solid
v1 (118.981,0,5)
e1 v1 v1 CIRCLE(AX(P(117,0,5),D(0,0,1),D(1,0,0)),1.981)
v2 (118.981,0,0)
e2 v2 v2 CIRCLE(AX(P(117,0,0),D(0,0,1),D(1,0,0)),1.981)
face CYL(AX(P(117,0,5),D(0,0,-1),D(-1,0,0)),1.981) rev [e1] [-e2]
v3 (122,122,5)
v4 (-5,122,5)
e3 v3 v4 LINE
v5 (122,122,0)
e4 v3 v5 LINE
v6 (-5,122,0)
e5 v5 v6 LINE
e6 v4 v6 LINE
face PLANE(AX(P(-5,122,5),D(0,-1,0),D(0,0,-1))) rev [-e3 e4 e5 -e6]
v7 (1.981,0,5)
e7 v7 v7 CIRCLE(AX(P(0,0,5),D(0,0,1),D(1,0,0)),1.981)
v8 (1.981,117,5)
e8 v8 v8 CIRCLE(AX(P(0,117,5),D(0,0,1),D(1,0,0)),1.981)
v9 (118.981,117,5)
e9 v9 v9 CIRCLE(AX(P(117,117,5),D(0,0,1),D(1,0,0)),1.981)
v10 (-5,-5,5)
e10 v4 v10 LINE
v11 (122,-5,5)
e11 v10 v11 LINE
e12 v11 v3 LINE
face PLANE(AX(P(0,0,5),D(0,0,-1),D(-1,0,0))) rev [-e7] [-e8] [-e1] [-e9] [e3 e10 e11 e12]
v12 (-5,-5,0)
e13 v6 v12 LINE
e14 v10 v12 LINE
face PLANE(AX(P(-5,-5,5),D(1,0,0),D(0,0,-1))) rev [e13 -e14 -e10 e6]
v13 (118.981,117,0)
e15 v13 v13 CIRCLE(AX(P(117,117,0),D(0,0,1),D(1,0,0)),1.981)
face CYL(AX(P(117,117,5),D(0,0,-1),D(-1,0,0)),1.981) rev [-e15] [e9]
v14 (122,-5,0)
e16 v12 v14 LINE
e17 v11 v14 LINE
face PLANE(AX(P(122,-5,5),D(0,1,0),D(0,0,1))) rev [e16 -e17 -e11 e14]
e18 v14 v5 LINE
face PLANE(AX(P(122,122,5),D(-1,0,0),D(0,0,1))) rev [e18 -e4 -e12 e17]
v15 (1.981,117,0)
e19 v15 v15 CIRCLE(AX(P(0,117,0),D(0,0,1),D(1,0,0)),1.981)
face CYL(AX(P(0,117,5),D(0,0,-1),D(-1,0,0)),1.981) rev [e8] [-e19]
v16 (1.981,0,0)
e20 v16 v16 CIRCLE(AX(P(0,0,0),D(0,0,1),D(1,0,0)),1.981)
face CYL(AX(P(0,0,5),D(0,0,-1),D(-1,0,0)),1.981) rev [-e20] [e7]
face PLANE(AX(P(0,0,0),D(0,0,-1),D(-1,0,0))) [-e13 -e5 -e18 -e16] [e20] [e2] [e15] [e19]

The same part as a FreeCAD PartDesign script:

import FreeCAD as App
import Part
import Sketcher

V = App.Vector
Q = App.Units.Quantity


def add_polygon(sketch, points):
    """Adds a closed chain of lines whose ends are joined by coincident constraints."""
    first, n = sketch.GeometryCount, len(points)
    for a, b in zip(points, points[1:] + points[:1]):
        sketch.addGeometry(Part.LineSegment(App.Vector(*a, 0), App.Vector(*b, 0)), False)
    for i in range(n):
        sketch.addConstraint(Sketcher.Constraint("Coincident", first + i, 2, first + (i + 1) % n, 1))

doc = App.newDocument("Part")
params = doc.addObject("Spreadsheet::Sheet", "Params")
for row, (alias, value) in enumerate([
    ("sketch1_width", "127 mm"),
    ("pad1_length", "5 mm"),
], start=1):
    params.set(f"A{row}", alias)
    params.set(f"B{row}", "=" + value)
    params.setAlias(f"B{row}", alias)

body = doc.addObject("PartDesign::Body", "Body")

sketch1 = doc.addObject("Sketcher::SketchObject", "Sketch")
body.addObject(sketch1)
sketch1.AttachmentSupport = (doc.XY_Plane, [""])
sketch1.MapMode = "FlatFace"
add_polygon(sketch1, [(-5, 122), (-5, -5), (122, -5), (122, 122)])
sketch1.addGeometry(Part.Circle(V(0, 0, 0), V(0, 0, 1), 2), False)
sketch1.addGeometry(Part.Circle(V(117, 0, 0), V(0, 0, 1), 2), False)
sketch1.addGeometry(Part.Circle(V(0, 117, 0), V(0, 0, 1), 2), False)
sketch1.addGeometry(Part.Circle(V(117, 117, 0), V(0, 0, 1), 2), False)
sketch1.addConstraint(Sketcher.Constraint("Vertical", 0))
sketch1.addConstraint(Sketcher.Constraint("Horizontal", 1))
sketch1.addConstraint(Sketcher.Constraint("Vertical", 2))
sketch1.addConstraint(Sketcher.Constraint("Horizontal", 3))
sketch1.addConstraint(Sketcher.Constraint("Coincident", 4, 3, -1, 1))
sketch1.addConstraint(Sketcher.Constraint("Equal", 4, 5))
sketch1.addConstraint(Sketcher.Constraint("Equal", 5, 6))
sketch1.addConstraint(Sketcher.Constraint("Equal", 6, 7))
sketch1.addConstraint(Sketcher.Constraint("PointOnObject", 5, 3, -1))
sketch1.addConstraint(Sketcher.Constraint("PointOnObject", 6, 3, -2))
sketch1.addConstraint(Sketcher.Constraint("Horizontal", 6, 3, 7, 3))
sketch1.addConstraint(Sketcher.Constraint("Vertical", 5, 3, 7, 3))
sketch1.addConstraint(Sketcher.Constraint("Equal", 3, 0))
sketch1.addConstraint(Sketcher.Constraint("DistanceX", 1, 1, 1, 2, Q("127 mm")))
sketch1.addConstraint(Sketcher.Constraint("Diameter", 4, Q("3.962 mm")))
sketch1.addConstraint(Sketcher.Constraint("DistanceX", -1, 1, 5, 3, Q("117 mm")))
sketch1.addConstraint(Sketcher.Constraint("DistanceY", -1, 1, 6, 3, Q("117 mm")))
sketch1.addConstraint(Sketcher.Constraint("DistanceX", 0, 2, -1, 1, Q("5 mm")))
sketch1.addConstraint(Sketcher.Constraint("DistanceY", 0, 2, -1, 1, Q("5 mm")))
sketch1.setExpression("Constraints[17]", "Params.sketch1_width")
pad1 = doc.addObject("PartDesign::Pad", "Pad")
body.addObject(pad1)
pad1.Profile = sketch1
pad1.setExpression("Length", "Params.pad1_length")

doc.recompute()
